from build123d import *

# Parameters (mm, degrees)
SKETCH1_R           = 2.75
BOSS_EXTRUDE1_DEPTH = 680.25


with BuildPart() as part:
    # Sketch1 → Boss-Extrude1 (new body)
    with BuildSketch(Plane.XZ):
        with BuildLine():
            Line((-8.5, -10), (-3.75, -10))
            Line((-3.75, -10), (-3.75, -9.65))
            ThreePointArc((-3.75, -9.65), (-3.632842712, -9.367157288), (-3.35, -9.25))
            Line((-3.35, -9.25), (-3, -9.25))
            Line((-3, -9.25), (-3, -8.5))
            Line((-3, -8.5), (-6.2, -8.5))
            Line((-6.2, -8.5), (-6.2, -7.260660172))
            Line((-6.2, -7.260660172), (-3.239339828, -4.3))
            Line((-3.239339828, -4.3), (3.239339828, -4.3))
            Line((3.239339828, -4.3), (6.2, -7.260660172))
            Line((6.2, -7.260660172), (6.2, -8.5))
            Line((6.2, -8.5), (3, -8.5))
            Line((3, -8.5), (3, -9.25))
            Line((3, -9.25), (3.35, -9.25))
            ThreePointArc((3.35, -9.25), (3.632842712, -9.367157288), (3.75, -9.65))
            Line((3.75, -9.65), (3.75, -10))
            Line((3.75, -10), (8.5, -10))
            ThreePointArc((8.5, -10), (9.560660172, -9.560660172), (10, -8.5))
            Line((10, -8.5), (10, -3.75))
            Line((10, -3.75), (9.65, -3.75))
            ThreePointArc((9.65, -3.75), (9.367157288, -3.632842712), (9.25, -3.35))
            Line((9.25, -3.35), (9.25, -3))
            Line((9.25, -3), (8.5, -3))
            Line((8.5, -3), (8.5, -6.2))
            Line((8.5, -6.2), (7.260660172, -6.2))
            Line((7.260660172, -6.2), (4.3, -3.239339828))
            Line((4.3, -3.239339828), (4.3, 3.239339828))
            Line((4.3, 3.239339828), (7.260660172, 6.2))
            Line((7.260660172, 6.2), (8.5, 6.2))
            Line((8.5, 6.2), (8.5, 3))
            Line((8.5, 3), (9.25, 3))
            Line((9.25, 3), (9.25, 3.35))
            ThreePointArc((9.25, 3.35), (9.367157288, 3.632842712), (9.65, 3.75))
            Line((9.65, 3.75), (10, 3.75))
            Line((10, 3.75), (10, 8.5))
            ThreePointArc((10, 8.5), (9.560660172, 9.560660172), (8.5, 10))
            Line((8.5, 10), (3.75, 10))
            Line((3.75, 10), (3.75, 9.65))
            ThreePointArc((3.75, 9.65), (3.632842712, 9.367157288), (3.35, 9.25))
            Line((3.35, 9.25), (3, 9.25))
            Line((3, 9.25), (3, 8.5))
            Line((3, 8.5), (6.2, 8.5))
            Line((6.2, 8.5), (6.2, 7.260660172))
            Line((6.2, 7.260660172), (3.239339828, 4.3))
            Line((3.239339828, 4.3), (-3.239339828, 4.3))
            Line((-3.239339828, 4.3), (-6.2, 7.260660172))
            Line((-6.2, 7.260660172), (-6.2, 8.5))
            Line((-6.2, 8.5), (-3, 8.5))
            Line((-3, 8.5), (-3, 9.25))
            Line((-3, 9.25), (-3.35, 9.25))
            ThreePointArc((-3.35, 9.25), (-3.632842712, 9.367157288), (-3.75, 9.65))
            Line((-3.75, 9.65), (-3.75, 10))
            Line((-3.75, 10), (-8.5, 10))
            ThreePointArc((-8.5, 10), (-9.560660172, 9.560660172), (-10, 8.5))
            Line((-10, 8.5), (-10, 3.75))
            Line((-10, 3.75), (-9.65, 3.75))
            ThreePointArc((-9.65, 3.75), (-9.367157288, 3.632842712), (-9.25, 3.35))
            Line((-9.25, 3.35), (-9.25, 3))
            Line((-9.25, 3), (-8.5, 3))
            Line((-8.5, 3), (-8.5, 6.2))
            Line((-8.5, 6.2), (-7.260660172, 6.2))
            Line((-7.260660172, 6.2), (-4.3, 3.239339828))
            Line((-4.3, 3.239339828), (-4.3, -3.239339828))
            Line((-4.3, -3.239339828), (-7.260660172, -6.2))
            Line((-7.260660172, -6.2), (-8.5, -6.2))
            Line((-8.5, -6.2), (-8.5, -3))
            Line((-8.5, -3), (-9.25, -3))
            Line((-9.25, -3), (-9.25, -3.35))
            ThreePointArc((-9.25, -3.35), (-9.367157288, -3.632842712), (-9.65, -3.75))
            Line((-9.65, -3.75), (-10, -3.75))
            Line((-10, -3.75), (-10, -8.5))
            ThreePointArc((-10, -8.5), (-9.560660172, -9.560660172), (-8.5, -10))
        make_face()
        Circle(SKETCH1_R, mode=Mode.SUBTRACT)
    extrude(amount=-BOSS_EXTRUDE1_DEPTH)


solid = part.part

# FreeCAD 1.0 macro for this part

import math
import FreeCAD as App
import Part
import Sketcher
from FreeCAD import Vector

doc = App.newDocument("Part")
params = doc.addObject("Spreadsheet::Sheet", "Params")
for row, (alias, value) in enumerate([
    ("sketch1_diameter", "5.5 mm"),
    ("sketch1_radius", "0.4 mm"),
    ("sketch1_radius2", "1.5 mm"),
    ("sketch1_width", "3.2 mm"),
    ("sketch1_width2", "4.75 mm"),
    ("pad1_length", "680.25 mm"),
], start=1):
    params.set(f"A{row}", alias)
    params.set(f"B{row}", "=" + value)
    params.setAlias(f"B{row}", alias)

body = doc.addObject("PartDesign::Body", "Body")

# Sketch on XZ plane
sketch1 = doc.addObject("Sketcher::SketchObject", "Sketch")
body.addObject(sketch1)
sketch1.AttachmentSupport = (doc.XZ_Plane, [""])
sketch1.MapMode = "FlatFace"
sketch1.addGeometry([
    Part.LineSegment(Vector(-8.5, -10, 0), Vector(-3.75, -10, 0)),  # 0
    Part.LineSegment(Vector(-3.75, -10, 0), Vector(-3.75, -9.65, 0)),  # 1
    Part.ArcOfCircle(Part.Circle(Vector(-3.35, -9.65, 0), Vector(0, 0, 1), 0.4), math.radians(90), math.radians(180)),  # 2
    Part.LineSegment(Vector(-3.35, -9.25, 0), Vector(-3, -9.25, 0)),  # 3
    Part.LineSegment(Vector(-3, -9.25, 0), Vector(-3, -8.5, 0)),  # 4
    Part.LineSegment(Vector(-3, -8.5, 0), Vector(-6.2, -8.5, 0)),  # 5
    Part.LineSegment(Vector(-6.2, -8.5, 0), Vector(-6.2, -7.26, 0)),  # 6
    Part.LineSegment(Vector(-6.2, -7.26, 0), Vector(-3.24, -4.3, 0)),  # 7
    Part.LineSegment(Vector(-3.24, -4.3, 0), Vector(3.24, -4.3, 0)),  # 8
    Part.LineSegment(Vector(3.24, -4.3, 0), Vector(6.2, -7.26, 0)),  # 9
    Part.LineSegment(Vector(6.2, -7.26, 0), Vector(6.2, -8.5, 0)),  # 10
    Part.LineSegment(Vector(6.2, -8.5, 0), Vector(3, -8.5, 0)),  # 11
    Part.LineSegment(Vector(3, -8.5, 0), Vector(3, -9.25, 0)),  # 12
    Part.LineSegment(Vector(3, -9.25, 0), Vector(3.35, -9.25, 0)),  # 13
    Part.ArcOfCircle(Part.Circle(Vector(3.35, -9.65, 0), Vector(0, 0, 1), 0.4), math.radians(0), math.radians(90)),  # 14
    Part.LineSegment(Vector(3.75, -9.65, 0), Vector(3.75, -10, 0)),  # 15
    Part.LineSegment(Vector(3.75, -10, 0), Vector(8.5, -10, 0)),  # 16
    Part.ArcOfCircle(Part.Circle(Vector(8.5, -8.5, 0), Vector(0, 0, 1), 1.5), math.radians(-90), math.radians(0)),  # 17
    Part.LineSegment(Vector(10, -8.5, 0), Vector(10, -3.75, 0)),  # 18
    Part.LineSegment(Vector(10, -3.75, 0), Vector(9.65, -3.75, 0)),  # 19
    Part.ArcOfCircle(Part.Circle(Vector(9.65, -3.35, 0), Vector(0, 0, 1), 0.4), math.radians(-180), math.radians(-90)),  # 20
    Part.LineSegment(Vector(9.25, -3.35, 0), Vector(9.25, -3, 0)),  # 21
    Part.LineSegment(Vector(9.25, -3, 0), Vector(8.5, -3, 0)),  # 22
    Part.LineSegment(Vector(8.5, -3, 0), Vector(8.5, -6.2, 0)),  # 23
    Part.LineSegment(Vector(8.5, -6.2, 0), Vector(7.26, -6.2, 0)),  # 24
    Part.LineSegment(Vector(7.26, -6.2, 0), Vector(4.3, -3.24, 0)),  # 25
    Part.LineSegment(Vector(4.3, -3.24, 0), Vector(4.3, 3.24, 0)),  # 26
    Part.LineSegment(Vector(4.3, 3.24, 0), Vector(7.26, 6.2, 0)),  # 27
    Part.LineSegment(Vector(7.26, 6.2, 0), Vector(8.5, 6.2, 0)),  # 28
    Part.LineSegment(Vector(8.5, 6.2, 0), Vector(8.5, 3, 0)),  # 29
    Part.LineSegment(Vector(8.5, 3, 0), Vector(9.25, 3, 0)),  # 30
    Part.LineSegment(Vector(9.25, 3, 0), Vector(9.25, 3.35, 0)),  # 31
    Part.ArcOfCircle(Part.Circle(Vector(9.65, 3.35, 0), Vector(0, 0, 1), 0.4), math.radians(90), math.radians(180)),  # 32
    Part.LineSegment(Vector(9.65, 3.75, 0), Vector(10, 3.75, 0)),  # 33
    Part.LineSegment(Vector(10, 3.75, 0), Vector(10, 8.5, 0)),  # 34
    Part.ArcOfCircle(Part.Circle(Vector(8.5, 8.5, 0), Vector(0, 0, 1), 1.5), math.radians(0), math.radians(90)),  # 35
    Part.LineSegment(Vector(8.5, 10, 0), Vector(3.75, 10, 0)),  # 36
    Part.LineSegment(Vector(3.75, 10, 0), Vector(3.75, 9.65, 0)),  # 37
    Part.ArcOfCircle(Part.Circle(Vector(3.35, 9.65, 0), Vector(0, 0, 1), 0.4), math.radians(-90), math.radians(0)),  # 38
    Part.LineSegment(Vector(3.35, 9.25, 0), Vector(3, 9.25, 0)),  # 39
    Part.LineSegment(Vector(3, 9.25, 0), Vector(3, 8.5, 0)),  # 40
    Part.LineSegment(Vector(3, 8.5, 0), Vector(6.2, 8.5, 0)),  # 41
    Part.LineSegment(Vector(6.2, 8.5, 0), Vector(6.2, 7.26, 0)),  # 42
    Part.LineSegment(Vector(6.2, 7.26, 0), Vector(3.24, 4.3, 0)),  # 43
    Part.LineSegment(Vector(3.24, 4.3, 0), Vector(-3.24, 4.3, 0)),  # 44
    Part.LineSegment(Vector(-3.24, 4.3, 0), Vector(-6.2, 7.26, 0)),  # 45
    Part.LineSegment(Vector(-6.2, 7.26, 0), Vector(-6.2, 8.5, 0)),  # 46
    Part.LineSegment(Vector(-6.2, 8.5, 0), Vector(-3, 8.5, 0)),  # 47
    Part.LineSegment(Vector(-3, 8.5, 0), Vector(-3, 9.25, 0)),  # 48
    Part.LineSegment(Vector(-3, 9.25, 0), Vector(-3.35, 9.25, 0)),  # 49
    Part.ArcOfCircle(Part.Circle(Vector(-3.35, 9.65, 0), Vector(0, 0, 1), 0.4), math.radians(-180), math.radians(-90)),  # 50
    Part.LineSegment(Vector(-3.75, 9.65, 0), Vector(-3.75, 10, 0)),  # 51
    Part.LineSegment(Vector(-3.75, 10, 0), Vector(-8.5, 10, 0)),  # 52
    Part.ArcOfCircle(Part.Circle(Vector(-8.5, 8.5, 0), Vector(0, 0, 1), 1.5), math.radians(90), math.radians(180)),  # 53
    Part.LineSegment(Vector(-10, 8.5, 0), Vector(-10, 3.75, 0)),  # 54
    Part.LineSegment(Vector(-10, 3.75, 0), Vector(-9.65, 3.75, 0)),  # 55
    Part.ArcOfCircle(Part.Circle(Vector(-9.65, 3.35, 0), Vector(0, 0, 1), 0.4), math.radians(0), math.radians(90)),  # 56
    Part.LineSegment(Vector(-9.25, 3.35, 0), Vector(-9.25, 3, 0)),  # 57
    Part.LineSegment(Vector(-9.25, 3, 0), Vector(-8.5, 3, 0)),  # 58
    Part.LineSegment(Vector(-8.5, 3, 0), Vector(-8.5, 6.2, 0)),  # 59
    Part.LineSegment(Vector(-8.5, 6.2, 0), Vector(-7.26, 6.2, 0)),  # 60
    Part.LineSegment(Vector(-7.26, 6.2, 0), Vector(-4.3, 3.24, 0)),  # 61
    Part.LineSegment(Vector(-4.3, 3.24, 0), Vector(-4.3, -3.24, 0)),  # 62
    Part.LineSegment(Vector(-4.3, -3.24, 0), Vector(-7.26, -6.2, 0)),  # 63
    Part.LineSegment(Vector(-7.26, -6.2, 0), Vector(-8.5, -6.2, 0)),  # 64
    Part.LineSegment(Vector(-8.5, -6.2, 0), Vector(-8.5, -3, 0)),  # 65
    Part.LineSegment(Vector(-8.5, -3, 0), Vector(-9.25, -3, 0)),  # 66
    Part.LineSegment(Vector(-9.25, -3, 0), Vector(-9.25, -3.35, 0)),  # 67
    Part.ArcOfCircle(Part.Circle(Vector(-9.65, -3.35, 0), Vector(0, 0, 1), 0.4), math.radians(-90), math.radians(0)),  # 68
    Part.LineSegment(Vector(-9.65, -3.75, 0), Vector(-10, -3.75, 0)),  # 69
    Part.LineSegment(Vector(-10, -3.75, 0), Vector(-10, -8.5, 0)),  # 70
    Part.ArcOfCircle(Part.Circle(Vector(-8.5, -8.5, 0), Vector(0, 0, 1), 1.5), math.radians(180), math.radians(270)),  # 71
    Part.Circle(Vector(0, 0, 0), Vector(0, 0, 1), 2.75),  # 72
], False)
sketch1.addConstraint([
    Sketcher.Constraint("Coincident", 0, 2, 1, 1),
    Sketcher.Constraint("Tangent", 1, 2, 2, 2),
    Sketcher.Constraint("Tangent", 2, 1, 3, 1),
    Sketcher.Constraint("Coincident", 3, 2, 4, 1),
    Sketcher.Constraint("Coincident", 4, 2, 5, 1),
    Sketcher.Constraint("Coincident", 5, 2, 6, 1),
    Sketcher.Constraint("Coincident", 6, 2, 7, 1),
    Sketcher.Constraint("Coincident", 7, 2, 8, 1),
    Sketcher.Constraint("Coincident", 8, 2, 9, 1),
    Sketcher.Constraint("Coincident", 9, 2, 10, 1),
    Sketcher.Constraint("Coincident", 10, 2, 11, 1),
    Sketcher.Constraint("Coincident", 11, 2, 12, 1),
    Sketcher.Constraint("Coincident", 12, 2, 13, 1),
    Sketcher.Constraint("Tangent", 13, 2, 14, 2),
    Sketcher.Constraint("Tangent", 14, 1, 15, 1),
    Sketcher.Constraint("Coincident", 15, 2, 16, 1),
    Sketcher.Constraint("Tangent", 16, 2, 17, 1),
    Sketcher.Constraint("Tangent", 17, 2, 18, 1),
    Sketcher.Constraint("Coincident", 18, 2, 19, 1),
    Sketcher.Constraint("Tangent", 19, 2, 20, 2),
    Sketcher.Constraint("Tangent", 20, 1, 21, 1),
    Sketcher.Constraint("Coincident", 21, 2, 22, 1),
    Sketcher.Constraint("Coincident", 22, 2, 23, 1),
    Sketcher.Constraint("Coincident", 23, 2, 24, 1),
    Sketcher.Constraint("Coincident", 24, 2, 25, 1),
    Sketcher.Constraint("Coincident", 25, 2, 26, 1),
    Sketcher.Constraint("Coincident", 26, 2, 27, 1),
    Sketcher.Constraint("Coincident", 27, 2, 28, 1),
    Sketcher.Constraint("Coincident", 28, 2, 29, 1),
    Sketcher.Constraint("Coincident", 29, 2, 30, 1),
    Sketcher.Constraint("Coincident", 30, 2, 31, 1),
    Sketcher.Constraint("Tangent", 31, 2, 32, 2),
    Sketcher.Constraint("Tangent", 32, 1, 33, 1),
    Sketcher.Constraint("Coincident", 33, 2, 34, 1),
    Sketcher.Constraint("Tangent", 34, 2, 35, 1),
    Sketcher.Constraint("Tangent", 35, 2, 36, 1),
    Sketcher.Constraint("Coincident", 36, 2, 37, 1),
    Sketcher.Constraint("Tangent", 37, 2, 38, 2),
    Sketcher.Constraint("Tangent", 38, 1, 39, 1),
    Sketcher.Constraint("Coincident", 39, 2, 40, 1),
    Sketcher.Constraint("Coincident", 40, 2, 41, 1),
    Sketcher.Constraint("Coincident", 41, 2, 42, 1),
    Sketcher.Constraint("Coincident", 42, 2, 43, 1),
    Sketcher.Constraint("Coincident", 43, 2, 44, 1),
    Sketcher.Constraint("Coincident", 44, 2, 45, 1),
    Sketcher.Constraint("Coincident", 45, 2, 46, 1),
    Sketcher.Constraint("Coincident", 46, 2, 47, 1),
    Sketcher.Constraint("Coincident", 47, 2, 48, 1),
    Sketcher.Constraint("Coincident", 48, 2, 49, 1),
    Sketcher.Constraint("Tangent", 49, 2, 50, 2),
    Sketcher.Constraint("Tangent", 50, 1, 51, 1),
    Sketcher.Constraint("Coincident", 51, 2, 52, 1),
    Sketcher.Constraint("Tangent", 52, 2, 53, 1),
    Sketcher.Constraint("Tangent", 53, 2, 54, 1),
    Sketcher.Constraint("Coincident", 54, 2, 55, 1),
    Sketcher.Constraint("Tangent", 55, 2, 56, 2),
    Sketcher.Constraint("Tangent", 56, 1, 57, 1),
    Sketcher.Constraint("Coincident", 57, 2, 58, 1),
    Sketcher.Constraint("Coincident", 58, 2, 59, 1),
    Sketcher.Constraint("Coincident", 59, 2, 60, 1),
    Sketcher.Constraint("Coincident", 60, 2, 61, 1),
    Sketcher.Constraint("Coincident", 61, 2, 62, 1),
    Sketcher.Constraint("Coincident", 62, 2, 63, 1),
    Sketcher.Constraint("Coincident", 63, 2, 64, 1),
    Sketcher.Constraint("Coincident", 64, 2, 65, 1),
    Sketcher.Constraint("Coincident", 65, 2, 66, 1),
    Sketcher.Constraint("Coincident", 66, 2, 67, 1),
    Sketcher.Constraint("Tangent", 67, 2, 68, 2),
    Sketcher.Constraint("Tangent", 68, 1, 69, 1),
    Sketcher.Constraint("Coincident", 69, 2, 70, 1),
    Sketcher.Constraint("Tangent", 70, 2, 71, 1),
    Sketcher.Constraint("Tangent", 71, 2, 0, 1),
    Sketcher.Constraint("Horizontal", 0),
    Sketcher.Constraint("Vertical", 1),
    Sketcher.Constraint("Horizontal", 3),
    Sketcher.Constraint("Vertical", 4),
    Sketcher.Constraint("Horizontal", 5),
    Sketcher.Constraint("Vertical", 6),
    Sketcher.Constraint("Horizontal", 8),
    Sketcher.Constraint("Vertical", 10),
    Sketcher.Constraint("Horizontal", 11),
    Sketcher.Constraint("Vertical", 12),
    Sketcher.Constraint("Horizontal", 13),
    Sketcher.Constraint("Vertical", 15),
    Sketcher.Constraint("Horizontal", 16),
    Sketcher.Constraint("Vertical", 18),
    Sketcher.Constraint("Horizontal", 19),
    Sketcher.Constraint("Vertical", 21),
    Sketcher.Constraint("Horizontal", 22),
    Sketcher.Constraint("Vertical", 23),
    Sketcher.Constraint("Horizontal", 24),
    Sketcher.Constraint("Vertical", 26),
    Sketcher.Constraint("Horizontal", 28),
    Sketcher.Constraint("Vertical", 29),
    Sketcher.Constraint("Horizontal", 30),
    Sketcher.Constraint("Vertical", 31),
    Sketcher.Constraint("Horizontal", 33),
    Sketcher.Constraint("Vertical", 34),
    Sketcher.Constraint("Horizontal", 36),
    Sketcher.Constraint("Vertical", 37),
    Sketcher.Constraint("Horizontal", 39),
    Sketcher.Constraint("Vertical", 40),
    Sketcher.Constraint("Horizontal", 41),
    Sketcher.Constraint("Vertical", 42),
    Sketcher.Constraint("Horizontal", 44),
    Sketcher.Constraint("Vertical", 46),
    Sketcher.Constraint("Horizontal", 47),
    Sketcher.Constraint("Vertical", 48),
    Sketcher.Constraint("Horizontal", 49),
    Sketcher.Constraint("Vertical", 51),
    Sketcher.Constraint("Horizontal", 52),
    Sketcher.Constraint("Vertical", 54),
    Sketcher.Constraint("Horizontal", 55),
    Sketcher.Constraint("Vertical", 57),
    Sketcher.Constraint("Horizontal", 58),
    Sketcher.Constraint("Vertical", 59),
    Sketcher.Constraint("Horizontal", 60),
    Sketcher.Constraint("Vertical", 62),
    Sketcher.Constraint("Horizontal", 64),
    Sketcher.Constraint("Vertical", 65),
    Sketcher.Constraint("Horizontal", 66),
    Sketcher.Constraint("Vertical", 67),
    Sketcher.Constraint("Horizontal", 69),
    Sketcher.Constraint("Vertical", 70),
    Sketcher.Constraint("Coincident", 72, 3, -1, 1),
    Sketcher.Constraint("Equal", 2, 14),
    Sketcher.Constraint("Equal", 14, 20),
    Sketcher.Constraint("Equal", 20, 32),
    Sketcher.Constraint("Equal", 17, 35),
    Sketcher.Constraint("Equal", 32, 38),
    Sketcher.Constraint("Equal", 38, 50),
    Sketcher.Constraint("Equal", 35, 53),
    Sketcher.Constraint("Equal", 50, 56),
    Sketcher.Constraint("Equal", 56, 68),
    Sketcher.Constraint("Equal", 53, 71),
    Sketcher.Constraint("Symmetric", 2, 3, 38, 3, -1, 1),
    Sketcher.Constraint("Symmetric", 14, 3, 50, 3, -1, 1),
    Sketcher.Constraint("Symmetric", 17, 3, 53, 3, -1, 1),
    Sketcher.Constraint("Symmetric", 20, 3, 56, 3, -1, 1),
    Sketcher.Constraint("Symmetric", 32, 3, 68, 3, -1, 1),
    Sketcher.Constraint("Symmetric", 35, 3, 71, 3, -1, 1),
    Sketcher.Constraint("Symmetric", 4, 2, 40, 2, -1, 1),
    Sketcher.Constraint("Symmetric", 6, 2, 42, 2, -1, 1),
    Sketcher.Constraint("Symmetric", 7, 2, 43, 2, -1, 1),
    Sketcher.Constraint("Symmetric", 9, 2, 45, 2, -1, 1),
    Sketcher.Constraint("Symmetric", 11, 2, 47, 2, -1, 1),
    Sketcher.Constraint("Symmetric", 22, 2, 58, 2, -1, 1),
    Sketcher.Constraint("Symmetric", 24, 2, 60, 2, -1, 1),
    Sketcher.Constraint("Symmetric", 25, 2, 61, 2, -1, 1),
    Sketcher.Constraint("Symmetric", 27, 2, 63, 2, -1, 1),
    Sketcher.Constraint("Symmetric", 29, 2, 65, 2, -1, 1),
    Sketcher.Constraint("Symmetric", 2, 3, 14, 3, -2),
    Sketcher.Constraint("Symmetric", 35, 3, 53, 3, -2),
    Sketcher.Constraint("Symmetric", 32, 3, 56, 3, -2),
    Sketcher.Constraint("Symmetric", 6, 2, 9, 2, -2),
    Sketcher.Constraint("Symmetric", 4, 2, 11, 2, -2),
    Sketcher.Constraint("Symmetric", 29, 2, 58, 2, -2),
    Sketcher.Constraint("Symmetric", 27, 2, 60, 2, -2),
    Sketcher.Constraint("Perpendicular", 7, 9),
    Sketcher.Constraint("Parallel", 9, 25),
    Sketcher.Constraint("Perpendicular", 25, 27),
    Sketcher.Constraint("Perpendicular", 43, 45),
    Sketcher.Constraint("Perpendicular", 61, 63),
    Sketcher.Constraint("Horizontal", 71, 3, 4, 2),
    Sketcher.Constraint("Horizontal", 26, 2, 61, 2),
    Sketcher.Constraint("Vertical", 16, 2, 22, 2),
    Sketcher.Constraint("Equal", 13, 19),
    Sketcher.Constraint("Equal", 69, 1),
    Sketcher.Constraint("Equal", 64, 6),
    Sketcher.Constraint("Equal", 52, 18),
    Sketcher.Constraint("Equal", 15, 21),
    Sketcher.Constraint("Equal", 47, 23),
    Sketcher.Constraint("Equal", 44, 26),
    Sketcher.Constraint("Equal", 9, 25),
    Sketcher.Constraint("Diameter", 72, 5.5),
    Sketcher.Constraint("Radius", 2, 0.4),
    Sketcher.Constraint("Radius", 17, 1.5),
    Sketcher.Constraint("DistanceX", 5, 2, 5, 1, 3.2),
    Sketcher.Constraint("DistanceY", 0, 2, -1, 1, 10.0),
    Sketcher.Constraint("DistanceX", 3, 2, -1, 1, 3.0),
    Sketcher.Constraint("DistanceX", 0, 1, 0, 2, 4.75),
    Sketcher.Constraint("DistanceY", 7, 2, -1, 1, 4.3),
    Sketcher.Constraint("DistanceX", 8, 1, 8, 2, 6.47868),
])
sketch1.setExpression("Constraints[174]", "Params.sketch1_diameter")
sketch1.setExpression("Constraints[175]", "Params.sketch1_radius")
sketch1.setExpression("Constraints[176]", "Params.sketch1_radius2")
sketch1.setExpression("Constraints[177]", "Params.sketch1_width")
sketch1.setExpression("Constraints[180]", "Params.sketch1_width2")
pad1 = doc.addObject("PartDesign::Pad", "Pad")
body.addObject(pad1)
pad1.Profile = sketch1
pad1.setExpression("Length", "Params.pad1_length")
pad1.Reversed = True

doc.recompute()
